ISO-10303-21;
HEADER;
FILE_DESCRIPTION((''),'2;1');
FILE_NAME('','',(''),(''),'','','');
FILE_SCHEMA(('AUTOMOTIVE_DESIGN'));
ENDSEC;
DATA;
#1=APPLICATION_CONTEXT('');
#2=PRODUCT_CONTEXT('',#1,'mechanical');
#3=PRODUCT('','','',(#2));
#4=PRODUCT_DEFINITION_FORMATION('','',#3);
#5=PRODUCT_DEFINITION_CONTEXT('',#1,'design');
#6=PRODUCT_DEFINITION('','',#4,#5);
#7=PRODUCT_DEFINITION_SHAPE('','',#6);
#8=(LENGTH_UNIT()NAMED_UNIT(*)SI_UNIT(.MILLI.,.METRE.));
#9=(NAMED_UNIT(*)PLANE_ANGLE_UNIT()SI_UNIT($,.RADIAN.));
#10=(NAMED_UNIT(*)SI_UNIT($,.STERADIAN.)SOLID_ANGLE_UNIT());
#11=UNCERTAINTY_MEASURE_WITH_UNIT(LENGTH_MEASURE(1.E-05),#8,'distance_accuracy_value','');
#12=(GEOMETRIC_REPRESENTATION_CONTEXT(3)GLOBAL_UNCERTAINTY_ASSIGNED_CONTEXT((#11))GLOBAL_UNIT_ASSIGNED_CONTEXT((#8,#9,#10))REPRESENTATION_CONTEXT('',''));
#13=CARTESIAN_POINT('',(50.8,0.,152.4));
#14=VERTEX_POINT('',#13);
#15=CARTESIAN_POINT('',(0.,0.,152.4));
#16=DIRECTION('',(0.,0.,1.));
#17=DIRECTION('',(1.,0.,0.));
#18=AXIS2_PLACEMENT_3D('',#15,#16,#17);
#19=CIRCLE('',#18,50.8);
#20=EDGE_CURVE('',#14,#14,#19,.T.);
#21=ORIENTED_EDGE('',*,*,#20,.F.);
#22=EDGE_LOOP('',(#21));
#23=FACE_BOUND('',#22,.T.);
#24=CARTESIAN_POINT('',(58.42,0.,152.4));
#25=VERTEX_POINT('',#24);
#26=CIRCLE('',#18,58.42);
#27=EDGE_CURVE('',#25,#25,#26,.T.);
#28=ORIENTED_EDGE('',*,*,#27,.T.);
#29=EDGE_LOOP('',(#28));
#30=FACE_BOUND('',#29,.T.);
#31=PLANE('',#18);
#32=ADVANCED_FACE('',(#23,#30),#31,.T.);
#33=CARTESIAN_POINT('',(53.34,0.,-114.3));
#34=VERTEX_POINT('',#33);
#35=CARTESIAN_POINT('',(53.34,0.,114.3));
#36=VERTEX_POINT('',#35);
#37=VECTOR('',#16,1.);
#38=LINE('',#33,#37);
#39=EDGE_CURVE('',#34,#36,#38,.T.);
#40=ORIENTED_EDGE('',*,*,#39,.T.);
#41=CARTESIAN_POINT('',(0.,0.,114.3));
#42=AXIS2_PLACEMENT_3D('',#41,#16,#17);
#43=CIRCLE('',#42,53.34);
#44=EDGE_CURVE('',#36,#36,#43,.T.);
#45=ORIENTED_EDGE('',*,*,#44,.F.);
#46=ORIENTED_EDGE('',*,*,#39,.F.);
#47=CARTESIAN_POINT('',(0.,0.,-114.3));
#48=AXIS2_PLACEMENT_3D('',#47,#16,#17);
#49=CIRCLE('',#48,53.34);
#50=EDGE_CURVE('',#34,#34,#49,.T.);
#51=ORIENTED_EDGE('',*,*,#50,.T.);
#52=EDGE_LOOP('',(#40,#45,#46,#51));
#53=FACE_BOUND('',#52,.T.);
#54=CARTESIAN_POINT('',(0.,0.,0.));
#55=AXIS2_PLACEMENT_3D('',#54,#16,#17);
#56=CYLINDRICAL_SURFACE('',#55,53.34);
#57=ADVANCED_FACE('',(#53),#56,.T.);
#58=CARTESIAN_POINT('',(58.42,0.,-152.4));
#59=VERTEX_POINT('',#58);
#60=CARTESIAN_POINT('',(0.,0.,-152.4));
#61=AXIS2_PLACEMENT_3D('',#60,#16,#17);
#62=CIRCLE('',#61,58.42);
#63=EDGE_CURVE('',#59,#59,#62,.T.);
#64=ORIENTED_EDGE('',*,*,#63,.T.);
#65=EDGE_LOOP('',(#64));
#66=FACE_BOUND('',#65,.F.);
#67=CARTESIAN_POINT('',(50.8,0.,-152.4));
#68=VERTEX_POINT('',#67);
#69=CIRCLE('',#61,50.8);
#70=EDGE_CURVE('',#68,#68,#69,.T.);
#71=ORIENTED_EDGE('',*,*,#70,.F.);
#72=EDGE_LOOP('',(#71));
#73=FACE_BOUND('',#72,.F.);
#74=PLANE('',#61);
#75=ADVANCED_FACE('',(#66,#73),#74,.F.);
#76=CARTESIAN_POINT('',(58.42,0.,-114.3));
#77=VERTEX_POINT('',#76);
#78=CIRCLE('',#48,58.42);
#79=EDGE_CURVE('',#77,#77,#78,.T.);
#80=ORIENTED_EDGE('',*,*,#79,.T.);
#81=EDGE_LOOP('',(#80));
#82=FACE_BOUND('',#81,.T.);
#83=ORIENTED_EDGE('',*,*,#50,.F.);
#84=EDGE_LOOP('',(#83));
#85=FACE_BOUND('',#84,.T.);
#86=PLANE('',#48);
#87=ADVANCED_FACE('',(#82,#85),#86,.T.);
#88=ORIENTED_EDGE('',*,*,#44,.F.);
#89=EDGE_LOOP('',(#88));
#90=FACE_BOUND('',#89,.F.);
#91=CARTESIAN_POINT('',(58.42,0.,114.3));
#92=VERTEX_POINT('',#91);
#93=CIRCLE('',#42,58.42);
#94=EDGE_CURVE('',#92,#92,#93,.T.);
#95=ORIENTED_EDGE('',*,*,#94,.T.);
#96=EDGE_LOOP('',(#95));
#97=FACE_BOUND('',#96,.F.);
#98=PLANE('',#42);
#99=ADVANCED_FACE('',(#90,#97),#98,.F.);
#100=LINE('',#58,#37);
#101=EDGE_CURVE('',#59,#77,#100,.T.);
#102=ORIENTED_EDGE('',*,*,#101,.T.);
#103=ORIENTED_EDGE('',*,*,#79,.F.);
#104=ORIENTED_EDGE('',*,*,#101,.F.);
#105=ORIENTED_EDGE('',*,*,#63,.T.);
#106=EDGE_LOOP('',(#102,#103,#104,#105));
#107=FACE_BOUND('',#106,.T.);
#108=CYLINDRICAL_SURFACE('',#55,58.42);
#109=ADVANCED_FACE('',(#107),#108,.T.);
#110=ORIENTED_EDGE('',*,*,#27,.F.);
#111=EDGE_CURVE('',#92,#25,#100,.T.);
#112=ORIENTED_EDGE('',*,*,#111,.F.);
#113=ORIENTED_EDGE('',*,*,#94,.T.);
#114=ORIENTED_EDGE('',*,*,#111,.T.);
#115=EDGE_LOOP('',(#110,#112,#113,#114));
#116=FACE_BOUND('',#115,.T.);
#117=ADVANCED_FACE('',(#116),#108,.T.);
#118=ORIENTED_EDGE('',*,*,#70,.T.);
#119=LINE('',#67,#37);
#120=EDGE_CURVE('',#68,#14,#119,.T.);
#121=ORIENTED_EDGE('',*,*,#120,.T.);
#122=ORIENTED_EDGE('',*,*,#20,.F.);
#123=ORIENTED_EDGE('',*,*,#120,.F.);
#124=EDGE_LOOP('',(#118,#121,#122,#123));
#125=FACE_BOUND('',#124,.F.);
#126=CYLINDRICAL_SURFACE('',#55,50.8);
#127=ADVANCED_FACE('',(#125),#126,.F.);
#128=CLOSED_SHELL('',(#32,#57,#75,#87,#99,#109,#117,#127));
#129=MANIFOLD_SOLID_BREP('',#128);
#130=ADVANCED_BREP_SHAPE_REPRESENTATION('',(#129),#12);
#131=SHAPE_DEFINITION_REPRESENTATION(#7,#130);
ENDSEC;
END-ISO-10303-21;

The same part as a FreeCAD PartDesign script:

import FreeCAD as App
import Part
import Sketcher
Q = App.Units.Quantity

doc = App.newDocument("Part")
params = doc.addObject("Spreadsheet::Sheet", "Params")
for row, (alias, value) in enumerate([
    ("sketch1_diameter", "4.6 in"),
    ("pad1_length", "12 in"),
    ("sketch2_diameter", "4.6 in"),
    ("pocket1_length", "9 in"),
    ("sketch3_diameter", "4.2 in"),
    ("pad2_length", "9 in"),
    ("sketch4_diameter", "4 in"),
    ("pocket2_length", "12 in"),
], start=1):
    params.set(f"A{row}", alias)
    params.set(f"B{row}", "=" + value)
    params.setAlias(f"B{row}", alias)

body = doc.addObject("PartDesign::Body", "Body")
body.AllowCompound = True

# Sketch on XY plane
sketch1 = doc.addObject("Sketcher::SketchObject", "Sketch")
body.addObject(sketch1)
sketch1.AttachmentSupport = (doc.XY_Plane, [""])
sketch1.MapMode = "FlatFace"
sketch1.addGeometry(Part.Circle(App.Vector(0, 0, 0), App.Vector(0, 0, 1), 58.42), False)
sketch1.addConstraint(Sketcher.Constraint("Coincident", 0, 3, -1, 1))
sketch1.addConstraint(Sketcher.Constraint("Diameter", 0, Q("4.6 in")))
sketch1.setExpression("Constraints[1]", "Params.sketch1_diameter")
pad1 = doc.addObject("PartDesign::Pad", "Pad")
body.addObject(pad1)
pad1.Profile = sketch1
pad1.setExpression("Length", "Params.pad1_length")
pad1.Midplane = True

# Sketch on XY plane
sketch2 = doc.addObject("Sketcher::SketchObject", "Sketch001")
body.addObject(sketch2)
sketch2.AttachmentSupport = (doc.XY_Plane, [""])
sketch2.MapMode = "FlatFace"
sketch2.addGeometry(Part.Circle(App.Vector(0, 0, 0), App.Vector(0, 0, 1), 58.42), False)
sketch2.addConstraint(Sketcher.Constraint("Coincident", 0, 3, -1, 1))
sketch2.addConstraint(Sketcher.Constraint("Diameter", 0, Q("4.6 in")))
sketch2.setExpression("Constraints[1]", "Params.sketch2_diameter")
pocket1 = doc.addObject("PartDesign::Pocket", "Pocket")
body.addObject(pocket1)
pocket1.Profile = sketch2
pocket1.setExpression("Length", "Params.pocket1_length")
pocket1.Midplane = True

# Sketch on XY plane
sketch3 = doc.addObject("Sketcher::SketchObject", "Sketch002")
body.addObject(sketch3)
sketch3.AttachmentSupport = (doc.XY_Plane, [""])
sketch3.MapMode = "FlatFace"
sketch3.addGeometry(Part.Circle(App.Vector(0, 0, 0), App.Vector(0, 0, 1), 53.34), False)
sketch3.addConstraint(Sketcher.Constraint("Coincident", 0, 3, -1, 1))
sketch3.addConstraint(Sketcher.Constraint("Diameter", 0, Q("4.2 in")))
sketch3.setExpression("Constraints[1]", "Params.sketch3_diameter")
pad2 = doc.addObject("PartDesign::Pad", "Pad001")
body.addObject(pad2)
pad2.Profile = sketch3
pad2.setExpression("Length", "Params.pad2_length")
pad2.Midplane = True

# Sketch on XY plane
sketch4 = doc.addObject("Sketcher::SketchObject", "Sketch003")
body.addObject(sketch4)
sketch4.AttachmentSupport = (doc.XY_Plane, [""])
sketch4.MapMode = "FlatFace"
sketch4.addGeometry(Part.Circle(App.Vector(0, 0, 0), App.Vector(0, 0, 1), 50.8), False)
sketch4.addConstraint(Sketcher.Constraint("Coincident", 0, 3, -1, 1))
sketch4.addConstraint(Sketcher.Constraint("Diameter", 0, Q("4 in")))
sketch4.setExpression("Constraints[1]", "Params.sketch4_diameter")
pocket2 = doc.addObject("PartDesign::Pocket", "Pocket001")
body.addObject(pocket2)
pocket2.Profile = sketch4
pocket2.setExpression("Length", "Params.pocket2_length")
pocket2.Midplane = True

doc.recompute()
